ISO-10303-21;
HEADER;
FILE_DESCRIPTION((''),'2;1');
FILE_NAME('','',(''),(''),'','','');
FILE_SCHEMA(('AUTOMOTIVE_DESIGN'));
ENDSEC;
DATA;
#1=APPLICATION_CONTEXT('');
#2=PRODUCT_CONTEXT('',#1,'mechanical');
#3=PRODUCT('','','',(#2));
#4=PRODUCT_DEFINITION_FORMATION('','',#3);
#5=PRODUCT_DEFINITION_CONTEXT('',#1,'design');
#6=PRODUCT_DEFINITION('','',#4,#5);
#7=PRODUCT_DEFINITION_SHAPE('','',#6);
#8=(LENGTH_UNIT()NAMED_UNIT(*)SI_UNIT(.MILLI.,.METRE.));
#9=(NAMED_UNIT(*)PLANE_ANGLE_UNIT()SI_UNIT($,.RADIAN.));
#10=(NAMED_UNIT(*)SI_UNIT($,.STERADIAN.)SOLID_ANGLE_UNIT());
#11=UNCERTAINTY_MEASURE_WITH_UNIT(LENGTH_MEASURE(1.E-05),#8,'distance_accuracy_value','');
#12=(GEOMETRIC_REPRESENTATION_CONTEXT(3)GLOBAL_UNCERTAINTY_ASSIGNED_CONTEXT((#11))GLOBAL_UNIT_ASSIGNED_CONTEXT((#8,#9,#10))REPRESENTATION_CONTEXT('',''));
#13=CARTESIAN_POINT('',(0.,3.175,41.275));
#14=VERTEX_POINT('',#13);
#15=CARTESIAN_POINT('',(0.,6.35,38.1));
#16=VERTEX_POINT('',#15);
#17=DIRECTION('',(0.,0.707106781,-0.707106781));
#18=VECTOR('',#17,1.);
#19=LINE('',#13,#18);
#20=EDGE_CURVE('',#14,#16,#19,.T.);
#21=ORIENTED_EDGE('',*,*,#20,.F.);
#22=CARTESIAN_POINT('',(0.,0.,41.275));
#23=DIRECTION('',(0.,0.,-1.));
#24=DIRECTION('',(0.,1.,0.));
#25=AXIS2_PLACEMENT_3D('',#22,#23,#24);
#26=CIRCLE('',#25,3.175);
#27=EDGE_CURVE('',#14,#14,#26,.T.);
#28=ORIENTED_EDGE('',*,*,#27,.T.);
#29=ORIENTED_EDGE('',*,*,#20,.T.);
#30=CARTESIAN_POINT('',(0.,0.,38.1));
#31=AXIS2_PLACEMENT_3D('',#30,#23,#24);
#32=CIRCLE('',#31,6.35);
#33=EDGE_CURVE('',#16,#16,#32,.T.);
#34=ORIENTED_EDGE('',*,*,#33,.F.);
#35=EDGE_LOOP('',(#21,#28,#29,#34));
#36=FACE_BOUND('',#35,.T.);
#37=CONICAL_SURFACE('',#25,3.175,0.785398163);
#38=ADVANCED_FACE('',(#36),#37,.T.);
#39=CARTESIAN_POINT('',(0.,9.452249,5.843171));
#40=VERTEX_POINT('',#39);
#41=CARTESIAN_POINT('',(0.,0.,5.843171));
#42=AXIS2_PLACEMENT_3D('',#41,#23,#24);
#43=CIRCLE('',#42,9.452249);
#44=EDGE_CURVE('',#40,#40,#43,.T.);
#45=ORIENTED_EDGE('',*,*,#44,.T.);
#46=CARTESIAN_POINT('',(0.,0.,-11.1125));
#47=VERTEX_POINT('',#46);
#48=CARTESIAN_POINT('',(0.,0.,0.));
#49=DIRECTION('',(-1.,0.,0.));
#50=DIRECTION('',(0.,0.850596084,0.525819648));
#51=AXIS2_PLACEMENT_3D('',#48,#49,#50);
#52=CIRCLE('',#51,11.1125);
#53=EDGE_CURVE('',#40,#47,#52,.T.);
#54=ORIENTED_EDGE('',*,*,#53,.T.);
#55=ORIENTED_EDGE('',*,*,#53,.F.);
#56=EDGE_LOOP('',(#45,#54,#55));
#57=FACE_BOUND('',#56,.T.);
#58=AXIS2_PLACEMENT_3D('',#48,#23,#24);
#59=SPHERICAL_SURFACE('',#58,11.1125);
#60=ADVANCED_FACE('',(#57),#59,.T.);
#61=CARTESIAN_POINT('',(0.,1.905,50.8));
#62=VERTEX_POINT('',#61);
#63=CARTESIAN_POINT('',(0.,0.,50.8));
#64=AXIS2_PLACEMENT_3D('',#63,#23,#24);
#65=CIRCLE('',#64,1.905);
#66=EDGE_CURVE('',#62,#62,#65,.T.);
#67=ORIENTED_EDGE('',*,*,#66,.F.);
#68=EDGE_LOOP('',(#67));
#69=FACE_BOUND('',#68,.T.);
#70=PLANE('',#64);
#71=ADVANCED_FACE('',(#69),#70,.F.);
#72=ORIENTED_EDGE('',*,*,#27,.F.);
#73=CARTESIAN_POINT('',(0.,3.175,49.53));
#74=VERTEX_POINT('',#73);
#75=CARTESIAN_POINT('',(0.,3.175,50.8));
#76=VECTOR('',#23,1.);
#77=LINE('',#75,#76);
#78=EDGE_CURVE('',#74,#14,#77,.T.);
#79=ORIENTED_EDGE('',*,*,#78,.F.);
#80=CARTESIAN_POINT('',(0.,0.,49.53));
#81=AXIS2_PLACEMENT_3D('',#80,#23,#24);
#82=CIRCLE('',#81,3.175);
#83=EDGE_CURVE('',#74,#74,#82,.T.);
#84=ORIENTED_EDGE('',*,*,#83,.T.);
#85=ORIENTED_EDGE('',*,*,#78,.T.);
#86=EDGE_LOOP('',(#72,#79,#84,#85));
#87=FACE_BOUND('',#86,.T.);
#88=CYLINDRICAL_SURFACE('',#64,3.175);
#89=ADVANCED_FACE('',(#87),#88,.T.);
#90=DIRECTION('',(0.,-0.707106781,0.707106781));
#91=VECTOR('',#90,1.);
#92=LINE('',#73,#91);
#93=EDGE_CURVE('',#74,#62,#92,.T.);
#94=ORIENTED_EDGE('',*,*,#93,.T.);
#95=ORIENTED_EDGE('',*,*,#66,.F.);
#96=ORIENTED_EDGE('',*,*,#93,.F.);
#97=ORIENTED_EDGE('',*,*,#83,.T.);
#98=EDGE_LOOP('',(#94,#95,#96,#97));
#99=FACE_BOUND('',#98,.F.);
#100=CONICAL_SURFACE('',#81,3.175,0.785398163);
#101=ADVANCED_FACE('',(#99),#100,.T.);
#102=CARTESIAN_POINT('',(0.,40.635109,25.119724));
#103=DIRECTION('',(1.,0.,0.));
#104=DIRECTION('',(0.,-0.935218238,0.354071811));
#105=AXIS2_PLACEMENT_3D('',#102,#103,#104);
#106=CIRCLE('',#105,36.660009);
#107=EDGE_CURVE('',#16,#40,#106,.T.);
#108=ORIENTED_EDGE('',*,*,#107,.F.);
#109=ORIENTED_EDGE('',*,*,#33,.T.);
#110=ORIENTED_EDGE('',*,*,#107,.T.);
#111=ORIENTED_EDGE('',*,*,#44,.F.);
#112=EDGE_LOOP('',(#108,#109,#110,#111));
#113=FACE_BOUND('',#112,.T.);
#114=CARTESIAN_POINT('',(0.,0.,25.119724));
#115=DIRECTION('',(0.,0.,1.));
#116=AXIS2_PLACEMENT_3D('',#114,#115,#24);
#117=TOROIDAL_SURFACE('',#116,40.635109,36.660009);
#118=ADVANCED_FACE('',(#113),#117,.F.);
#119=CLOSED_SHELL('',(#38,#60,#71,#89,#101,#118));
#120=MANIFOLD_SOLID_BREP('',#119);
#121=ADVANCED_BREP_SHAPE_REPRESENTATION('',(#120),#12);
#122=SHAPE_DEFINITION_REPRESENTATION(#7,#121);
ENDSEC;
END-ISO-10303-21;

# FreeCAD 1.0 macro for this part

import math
import FreeCAD as App
import Part
import Sketcher
from FreeCAD import Vector
Q = App.Units.Quantity


def edges_at(feature, points):
    """Names of the edges that pass closest to the given points."""
    edges = feature.Shape.Edges
    near = lambda p: min(range(len(edges)), key=lambda i: edges[i].distToShape(Part.Vertex(*p))[0])
    return sorted({f"Edge{near(p) + 1}" for p in points})

doc = App.newDocument("Part")
body = doc.addObject("PartDesign::Body", "Body")

# Sketch on YZ plane
sketch1 = body.newObject("Sketcher::SketchObject", "Sketch")
sketch1.AttachmentSupport = (doc.getObject("YZ_Plane"), [""])
sketch1.MapMode = "FlatFace"
sketch1.addGeometry([
    Part.LineSegment(Vector(3.2, 41.3, 0), Vector(3.2, 50.8, 0)),  # 0
    Part.LineSegment(Vector(3.2, 50.8, 0), Vector(0, 50.8, 0)),  # 1
    Part.LineSegment(Vector(0, 50.8, 0), Vector(0, -11.1, 0)),  # 2
    Part.ArcOfCircle(Part.Circle(Vector(0, 0, 0), Vector(0, 0, 1), 11.1), math.radians(-90), math.radians(32)),  # 3
    Part.ArcOfCircle(Part.Circle(Vector(40.6, 25.1, 0), Vector(0, 0, 1), 36.7), math.radians(159), math.radians(212)),  # 4
    Part.LineSegment(Vector(6.3, 38.1, 0), Vector(3.2, 41.3, 0)),  # 5
], False)
sketch1.addConstraint([
    Sketcher.Constraint("Coincident", 0, 2, 1, 1),
    Sketcher.Constraint("Coincident", 1, 2, 2, 1),
    Sketcher.Constraint("Coincident", 2, 2, 3, 1),
    Sketcher.Constraint("Tangent", 3, 2, 4, 2),
    Sketcher.Constraint("Coincident", 4, 1, 5, 1),
    Sketcher.Constraint("Coincident", 5, 2, 0, 1),
    Sketcher.Constraint("Vertical", 0),
    Sketcher.Constraint("Horizontal", 1),
    Sketcher.Constraint("Vertical", 2),
    Sketcher.Constraint("Coincident", 3, 3, -1, 1),
    Sketcher.Constraint("PointOnObject", 1, 2, -2),
    Sketcher.Constraint("DistanceY", -1, 1, 0, 2, Q("2 in")),
    Sketcher.Constraint("Angle", 5, Q("135 deg")),
    Sketcher.Constraint("Radius", 3, Q("0.4375 in")),
    Sketcher.Constraint("DistanceY", -1, 1, 4, 1, Q("1.5 in")),
    Sketcher.Constraint("DistanceX", 1, 2, 1, 1, Q("0.125 in")),
    Sketcher.Constraint("DistanceY", 0, 1, 0, 2, Q("0.375 in")),
    Sketcher.Constraint("Radius", 4, Q("36.660009 mm")),
])
revolution = body.newObject("PartDesign::Revolution", "Revolution")
revolution.Profile = sketch1
revolution.ReferenceAxis = (sketch1, ["V_Axis"])
revolution.Angle = 360
doc.recompute()

chamfer = body.newObject("PartDesign::Chamfer", "Chamfer")
chamfer.Base = (revolution, edges_at(revolution, [(0, -3.175, 50.8)]))
chamfer.Size = Q("0.05 in")

doc.recompute()
